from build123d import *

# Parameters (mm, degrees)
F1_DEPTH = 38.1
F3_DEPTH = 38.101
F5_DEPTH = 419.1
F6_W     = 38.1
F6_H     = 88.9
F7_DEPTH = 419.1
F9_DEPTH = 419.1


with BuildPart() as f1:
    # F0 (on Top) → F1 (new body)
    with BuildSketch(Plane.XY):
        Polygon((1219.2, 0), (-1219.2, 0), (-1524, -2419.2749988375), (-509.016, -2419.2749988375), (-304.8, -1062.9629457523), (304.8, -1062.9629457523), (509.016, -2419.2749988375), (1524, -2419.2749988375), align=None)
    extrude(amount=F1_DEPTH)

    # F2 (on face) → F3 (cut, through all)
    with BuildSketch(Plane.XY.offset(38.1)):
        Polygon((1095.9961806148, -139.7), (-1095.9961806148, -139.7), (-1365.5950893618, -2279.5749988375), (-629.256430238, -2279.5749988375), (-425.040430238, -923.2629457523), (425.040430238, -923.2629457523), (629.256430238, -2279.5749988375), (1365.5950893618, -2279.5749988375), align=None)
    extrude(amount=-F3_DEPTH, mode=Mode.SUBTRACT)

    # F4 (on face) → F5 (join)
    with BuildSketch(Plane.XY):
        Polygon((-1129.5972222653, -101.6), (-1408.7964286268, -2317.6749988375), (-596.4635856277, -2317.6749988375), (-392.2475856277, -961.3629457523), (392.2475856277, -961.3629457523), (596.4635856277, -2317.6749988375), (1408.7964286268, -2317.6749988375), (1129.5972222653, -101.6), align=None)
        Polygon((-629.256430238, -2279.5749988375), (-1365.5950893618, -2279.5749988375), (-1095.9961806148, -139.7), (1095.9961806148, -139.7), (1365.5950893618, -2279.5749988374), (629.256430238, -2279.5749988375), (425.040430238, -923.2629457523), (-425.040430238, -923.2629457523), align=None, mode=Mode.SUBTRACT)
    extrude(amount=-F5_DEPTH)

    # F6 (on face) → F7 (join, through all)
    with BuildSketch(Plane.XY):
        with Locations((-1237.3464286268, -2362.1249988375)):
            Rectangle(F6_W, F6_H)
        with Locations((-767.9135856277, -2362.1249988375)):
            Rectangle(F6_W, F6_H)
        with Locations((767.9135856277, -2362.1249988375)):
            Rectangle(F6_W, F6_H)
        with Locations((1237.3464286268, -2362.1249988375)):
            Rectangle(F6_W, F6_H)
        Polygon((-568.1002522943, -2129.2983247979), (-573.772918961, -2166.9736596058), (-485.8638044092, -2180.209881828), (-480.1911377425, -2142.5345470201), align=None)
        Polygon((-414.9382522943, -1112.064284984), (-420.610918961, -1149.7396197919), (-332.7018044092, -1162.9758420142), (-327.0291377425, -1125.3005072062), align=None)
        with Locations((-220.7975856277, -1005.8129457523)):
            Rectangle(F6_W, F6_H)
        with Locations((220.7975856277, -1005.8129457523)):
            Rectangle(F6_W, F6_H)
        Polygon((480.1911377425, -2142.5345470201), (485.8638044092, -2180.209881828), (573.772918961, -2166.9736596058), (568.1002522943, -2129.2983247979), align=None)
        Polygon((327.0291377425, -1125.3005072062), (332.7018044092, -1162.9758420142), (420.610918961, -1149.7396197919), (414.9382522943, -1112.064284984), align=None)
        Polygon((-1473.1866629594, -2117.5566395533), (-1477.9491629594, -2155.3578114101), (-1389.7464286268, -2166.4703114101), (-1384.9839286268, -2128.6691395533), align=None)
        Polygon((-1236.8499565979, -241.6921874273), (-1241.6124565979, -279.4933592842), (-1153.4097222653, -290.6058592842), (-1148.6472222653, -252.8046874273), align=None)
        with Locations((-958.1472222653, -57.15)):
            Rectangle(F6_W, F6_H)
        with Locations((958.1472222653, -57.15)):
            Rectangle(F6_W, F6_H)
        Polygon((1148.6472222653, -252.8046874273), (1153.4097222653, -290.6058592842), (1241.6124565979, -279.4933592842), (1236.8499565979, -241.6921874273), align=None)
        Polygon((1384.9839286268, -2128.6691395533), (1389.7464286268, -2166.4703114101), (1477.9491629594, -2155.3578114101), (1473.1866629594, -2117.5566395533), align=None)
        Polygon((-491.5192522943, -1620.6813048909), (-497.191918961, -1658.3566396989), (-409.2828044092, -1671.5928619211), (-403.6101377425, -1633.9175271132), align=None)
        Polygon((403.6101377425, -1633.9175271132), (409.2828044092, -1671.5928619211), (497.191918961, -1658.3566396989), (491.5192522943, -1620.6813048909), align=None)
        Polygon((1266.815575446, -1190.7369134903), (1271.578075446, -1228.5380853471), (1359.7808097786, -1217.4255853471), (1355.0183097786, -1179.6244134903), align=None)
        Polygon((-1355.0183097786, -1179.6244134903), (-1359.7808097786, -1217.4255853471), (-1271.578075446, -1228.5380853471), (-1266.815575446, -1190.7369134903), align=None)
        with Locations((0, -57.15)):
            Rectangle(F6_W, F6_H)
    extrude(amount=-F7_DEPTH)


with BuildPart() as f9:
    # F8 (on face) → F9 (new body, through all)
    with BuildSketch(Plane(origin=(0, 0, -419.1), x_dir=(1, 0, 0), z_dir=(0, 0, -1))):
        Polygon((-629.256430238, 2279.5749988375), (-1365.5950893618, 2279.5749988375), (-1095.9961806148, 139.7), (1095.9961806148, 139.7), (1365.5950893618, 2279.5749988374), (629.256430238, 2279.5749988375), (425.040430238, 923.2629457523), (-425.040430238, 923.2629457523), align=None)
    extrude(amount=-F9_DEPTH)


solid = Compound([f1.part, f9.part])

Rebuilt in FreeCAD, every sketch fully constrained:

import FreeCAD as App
import Part
import Sketcher

V = App.Vector
Q = App.Units.Quantity


def add_polygon(sketch, points):
    """Adds a closed chain of lines whose ends are joined by coincident constraints."""
    first, n = sketch.GeometryCount, len(points)
    for a, b in zip(points, points[1:] + points[:1]):
        sketch.addGeometry(Part.LineSegment(App.Vector(*a, 0), App.Vector(*b, 0)), False)
    for i in range(n):
        sketch.addConstraint(Sketcher.Constraint("Coincident", first + i, 2, first + (i + 1) % n, 1))

doc = App.newDocument("Part")
params = doc.addObject("Spreadsheet::Sheet", "Params")
for row, (alias, value) in enumerate([
    ("sketch1_width", "96 in"),
    ("sketch1_width2", "24 in"),
    ("sketch1_length", "96 in"),
    ("sketch1_length2", "54 in"),
    ("sketch1_width3", "39.96 in"),
    ("pad1_length", "1.5 in"),
    ("sketch2_length", "54 in"),
    ("sketch3_length", "54 in"),
    ("pad2_length", "16.5 in"),
    ("sketch4_width", "1.5 in"),
    ("sketch4_height", "3.5 in"),
    ("sketch4_length", "1.5 in"),
    ("sketch4_length2", "3.5 in"),
    ("pad3_length", "16.5 in"),
    ("sketch5_length", "54 in"),
    ("pad4_length", "16.5 in"),
], start=1):
    params.set(f"A{row}", alias)
    params.set(f"B{row}", "=" + value)
    params.setAlias(f"B{row}", alias)

body = doc.addObject("PartDesign::Body", "Body")

sketch1 = body.newObject("Sketcher::SketchObject", "Sketch")
sketch1.AttachmentSupport = (doc.getObject("XY_Plane"), [""])
sketch1.MapMode = "FlatFace"
add_polygon(sketch1, [(1219, 0), (-1219, 0), (-1524, -2419), (-509, -2419), (-305, -1063), (305, -1063), (509, -2419), (1524, -2419)])
sketch1.addConstraint([
    Sketcher.Constraint("Horizontal", 0),
    Sketcher.Constraint("Horizontal", 2),
    Sketcher.Constraint("Horizontal", 4),
    Sketcher.Constraint("Horizontal", 6),
    Sketcher.Constraint("Symmetric", 0, 2, 7, 2, -1, 1),
    Sketcher.Constraint("Symmetric", 2, 2, 5, 2, -2),
    Sketcher.Constraint("Equal", 2, 6),
    Sketcher.Constraint("Equal", 3, 5),
    Sketcher.Constraint("DistanceX", 0, 2, 0, 1, Q("96 in")),
    Sketcher.Constraint("DistanceX", 4, 1, 4, 2, Q("24 in")),
    Sketcher.Constraint("Distance", 1, Q("96 in")),
    Sketcher.Constraint("Distance", 3, Q("54 in")),
    Sketcher.Constraint("DistanceX", 1, 2, -1, 1, Q("60 in")),
    Sketcher.Constraint("DistanceX", 2, 1, 2, 2, Q("39.96 in")),
])
sketch1.setExpression("Constraints[16]", "Params.sketch1_width")
sketch1.setExpression("Constraints[17]", "Params.sketch1_width2")
sketch1.setExpression("Constraints[18]", "Params.sketch1_length")
sketch1.setExpression("Constraints[19]", "Params.sketch1_length2")
sketch1.setExpression("Constraints[21]", "Params.sketch1_width3")
pad1 = body.newObject("PartDesign::Pad", "Pad")
pad1.Profile = sketch1
pad1.setExpression("Length", "Params.pad1_length")

sketch2 = body.newObject("Sketcher::SketchObject", "Sketch001")
sketch2.AttachmentSupport = (doc.getObject("XY_Plane"), [""])
sketch2.MapMode = "FlatFace"
sketch2.AttachmentOffset = App.Placement(V(0, 0, 1.5 * 25.4), App.Rotation())
add_polygon(sketch2, [(1096, -140), (-1096, -140), (-1366, -2280), (-629, -2280), (-425, -923), (425, -923), (629, -2280), (1366, -2280)])
sketch2.addConstraint([
    Sketcher.Constraint("Horizontal", 0),
    Sketcher.Constraint("Horizontal", 2),
    Sketcher.Constraint("Horizontal", 4),
    Sketcher.Constraint("Horizontal", 6),
    Sketcher.Constraint("Symmetric", 2, 2, 5, 2, -2),
    Sketcher.Constraint("Equal", 2, 6),
    Sketcher.Constraint("Equal", 3, 5),
    Sketcher.Constraint("Equal", 1, 7),
    Sketcher.Constraint("Distance", 3, Q("54 in")),
    Sketcher.Constraint("DistanceY", 0, 2, -1, 1, Q("5.5 in")),
    Sketcher.Constraint("DistanceX", 2, 2, 3, 2, Q("8.04 in")),
    Sketcher.Constraint("DistanceX", 0, 2, 0, 1, 2191.992361),
    Sketcher.Constraint("DistanceX", 2, 1, 2, 2, 736.338659),
    Sketcher.Constraint("DistanceX", 4, 1, 4, 2, 850.08086),
    Sketcher.Constraint("DistanceY", 1, 2, -1, 1, 2279.574999),
])
sketch2.setExpression("Constraints[16]", "Params.sketch2_length")
pocket1 = body.newObject("PartDesign::Pocket", "Pocket")
pocket1.Profile = sketch2
pocket1.Type = "ThroughAll"

sketch3 = body.newObject("Sketcher::SketchObject", "Sketch002")
sketch3.AttachmentSupport = (doc.getObject("XY_Plane"), [""])
sketch3.MapMode = "FlatFace"
add_polygon(sketch3, [(-1130, -102), (-1409, -2318), (-596, -2318), (-392, -961), (392, -961), (596, -2318), (1409, -2318), (1130, -102)])
add_polygon(sketch3, [(-425, -923), (-629, -2280), (-1366, -2280), (-1096, -140), (1096, -140), (1366, -2280), (629, -2280), (425, -923)])
sketch3.addConstraint([
    Sketcher.Constraint("Horizontal", 1),
    Sketcher.Constraint("Horizontal", 3),
    Sketcher.Constraint("Horizontal", 5),
    Sketcher.Constraint("Horizontal", 7),
    Sketcher.Constraint("Horizontal", 9),
    Sketcher.Constraint("Horizontal", 11),
    Sketcher.Constraint("Horizontal", 13),
    Sketcher.Constraint("Horizontal", 15),
    Sketcher.Constraint("Symmetric", 1, 2, 4, 2, -2),
    Sketcher.Constraint("Symmetric", 9, 2, 12, 2, -2),
    Sketcher.Constraint("Parallel", 2, 8),
    Sketcher.Constraint("Parallel", 0, 10),
    Sketcher.Constraint("Parallel", 6, 12),
    Sketcher.Constraint("Parallel", 4, 14),
    Sketcher.Constraint("Equal", 1, 5),
    Sketcher.Constraint("Equal", 9, 13),
    Sketcher.Constraint("Equal", 2, 4),
    Sketcher.Constraint("Equal", 0, 6),
    Sketcher.Constraint("Equal", 4, 8),
    Sketcher.Constraint("Distance", 2, Q("54 in")),
    Sketcher.Constraint("DistanceY", 6, 2, -1, 1, Q("4 in")),
    Sketcher.Constraint("DistanceY", 10, 2, -1, 1, Q("5.5 in")),
    Sketcher.Constraint("DistanceY", 1, 2, 8, 2, Q("1.5 in")),
    Sketcher.Constraint("DistanceX", 1, 2, 2, 2, Q("8.04 in")),
    Sketcher.Constraint("DistanceX", 3, 1, 3, 2, 784.495171),
    Sketcher.Constraint("DistanceX", 9, 2, 9, 1, 736.338659),
    Sketcher.Constraint("DistanceX", 11, 1, 11, 2, 2191.992361),
    Sketcher.Constraint("DistanceX", 15, 2, 15, 1, 850.08086),
    Sketcher.Constraint("DistanceY", 0, 2, -1, 1, 2317.674999),
    Sketcher.Constraint("DistanceX", 0, 2, 8, 2, 779.539998),
])
sketch3.setExpression("Constraints[35]", "Params.sketch3_length")
pad2 = body.newObject("PartDesign::Pad", "Pad001")
pad2.Profile = sketch3
pad2.setExpression("Length", "Params.pad2_length")
pad2.Reversed = True

sketch4 = body.newObject("Sketcher::SketchObject", "Sketch003")
sketch4.AttachmentSupport = (doc.getObject("XY_Plane"), [""])
sketch4.MapMode = "FlatFace"
add_polygon(sketch4, [(-1256, -2318), (-1256, -2407), (-1218, -2407), (-1218, -2318)])
add_polygon(sketch4, [(-787, -2318), (-787, -2407), (-749, -2407), (-749, -2318)])
add_polygon(sketch4, [(749, -2318), (749, -2407), (787, -2407), (787, -2318)])
add_polygon(sketch4, [(1218, -2318), (1218, -2407), (1256, -2407), (1256, -2318)])
add_polygon(sketch4, [(-568, -2129), (-574, -2167), (-486, -2180), (-480, -2143)])
add_polygon(sketch4, [(-415, -1112), (-421, -1150), (-333, -1163), (-327, -1125)])
add_polygon(sketch4, [(-240, -961), (-240, -1050), (-202, -1050), (-202, -961)])
add_polygon(sketch4, [(202, -961), (202, -1050), (240, -1050), (240, -961)])
add_polygon(sketch4, [(480, -2143), (486, -2180), (574, -2167), (568, -2129)])
add_polygon(sketch4, [(327, -1125), (333, -1163), (421, -1150), (415, -1112)])
add_polygon(sketch4, [(-1473, -2118), (-1478, -2155), (-1390, -2166), (-1385, -2129)])
add_polygon(sketch4, [(-1237, -242), (-1242, -279), (-1153, -291), (-1149, -253)])
add_polygon(sketch4, [(-977, -13), (-977, -102), (-939, -102), (-939, -13)])
add_polygon(sketch4, [(939, -13), (939, -102), (977, -102), (977, -13)])
add_polygon(sketch4, [(1149, -253), (1153, -291), (1242, -279), (1237, -242)])
add_polygon(sketch4, [(1385, -2129), (1390, -2166), (1478, -2155), (1473, -2118)])
add_polygon(sketch4, [(-492, -1621), (-497, -1658), (-409, -1672), (-404, -1634)])
add_polygon(sketch4, [(404, -1634), (409, -1672), (497, -1658), (492, -1621)])
add_polygon(sketch4, [(1267, -1191), (1272, -1229), (1360, -1217), (1355, -1180)])
add_polygon(sketch4, [(-1355, -1180), (-1360, -1217), (-1272, -1229), (-1267, -1191)])
add_polygon(sketch4, [(-19, -13), (-19, -102), (19, -102), (19, -13)])
sketch4.addConstraint([
    Sketcher.Constraint("Vertical", 0),
    Sketcher.Constraint("Horizontal", 1),
    Sketcher.Constraint("Vertical", 2),
    Sketcher.Constraint("Horizontal", 3),
    Sketcher.Constraint("Vertical", 4),
    Sketcher.Constraint("Horizontal", 5),
    Sketcher.Constraint("Vertical", 6),
    Sketcher.Constraint("Horizontal", 7),
    Sketcher.Constraint("Vertical", 8),
    Sketcher.Constraint("Horizontal", 9),
    Sketcher.Constraint("Vertical", 10),
    Sketcher.Constraint("Horizontal", 11),
    Sketcher.Constraint("Vertical", 12),
    Sketcher.Constraint("Horizontal", 13),
    Sketcher.Constraint("Vertical", 14),
    Sketcher.Constraint("Horizontal", 15),
    Sketcher.Constraint("Vertical", 24),
    Sketcher.Constraint("Horizontal", 25),
    Sketcher.Constraint("Vertical", 26),
    Sketcher.Constraint("Horizontal", 27),
    Sketcher.Constraint("Vertical", 28),
    Sketcher.Constraint("Horizontal", 29),
    Sketcher.Constraint("Vertical", 30),
    Sketcher.Constraint("Horizontal", 31),
    Sketcher.Constraint("Vertical", 48),
    Sketcher.Constraint("Horizontal", 49),
    Sketcher.Constraint("Vertical", 50),
    Sketcher.Constraint("Horizontal", 51),
    Sketcher.Constraint("Vertical", 52),
    Sketcher.Constraint("Horizontal", 53),
    Sketcher.Constraint("Vertical", 54),
    Sketcher.Constraint("Horizontal", 55),
    Sketcher.Constraint("Vertical", 80),
    Sketcher.Constraint("Horizontal", 81),
    Sketcher.Constraint("Vertical", 82),
    Sketcher.Constraint("Horizontal", 83),
    Sketcher.Constraint("Symmetric", 5, 2, 8, 2, -2),
    Sketcher.Constraint("Symmetric", 7, 2, 10, 2, -2),
    Sketcher.Constraint("Symmetric", 1, 2, 12, 2, -2),
    Sketcher.Constraint("Symmetric", 3, 2, 14, 2, -2),
    Sketcher.Constraint("Symmetric", 25, 2, 28, 2, -2),
    Sketcher.Constraint("Symmetric", 27, 2, 30, 2, -2),
    Sketcher.Constraint("Symmetric", 17, 2, 32, 2, -2),
    Sketcher.Constraint("Symmetric", 16, 2, 33, 2, -2),
    Sketcher.Constraint("Symmetric", 19, 2, 34, 2, -2),
    Sketcher.Constraint("Symmetric", 18, 2, 35, 2, -2),
    Sketcher.Constraint("Symmetric", 21, 2, 36, 2, -2),
    Sketcher.Constraint("Symmetric", 20, 2, 37, 2, -2),
    Sketcher.Constraint("Symmetric", 23, 2, 38, 2, -2),
    Sketcher.Constraint("Symmetric", 22, 2, 39, 2, -2),
    Sketcher.Constraint("Symmetric", 49, 2, 52, 2, -2),
    Sketcher.Constraint("Symmetric", 51, 2, 54, 2, -2),
    Sketcher.Constraint("Symmetric", 45, 2, 56, 2, -2),
    Sketcher.Constraint("Symmetric", 44, 2, 57, 2, -2),
    Sketcher.Constraint("Symmetric", 47, 2, 58, 2, -2),
    Sketcher.Constraint("Symmetric", 46, 2, 59, 2, -2),
    Sketcher.Constraint("Symmetric", 41, 2, 60, 2, -2),
    Sketcher.Constraint("Symmetric", 40, 2, 61, 2, -2),
    Sketcher.Constraint("Symmetric", 43, 2, 62, 2, -2),
    Sketcher.Constraint("Symmetric", 42, 2, 63, 2, -2),
    Sketcher.Constraint("Symmetric", 65, 2, 68, 2, -2),
    Sketcher.Constraint("Symmetric", 64, 2, 69, 2, -2),
    Sketcher.Constraint("Symmetric", 67, 2, 70, 2, -2),
    Sketcher.Constraint("Symmetric", 66, 2, 71, 2, -2),
    Sketcher.Constraint("Symmetric", 73, 2, 76, 2, -2),
    Sketcher.Constraint("Symmetric", 72, 2, 77, 2, -2),
    Sketcher.Constraint("Symmetric", 75, 2, 78, 2, -2),
    Sketcher.Constraint("Symmetric", 74, 2, 79, 2, -2),
    Sketcher.Constraint("Perpendicular", 16, 17),
    Sketcher.Constraint("Perpendicular", 17, 18),
    Sketcher.Constraint("Perpendicular", 18, 19),
    Sketcher.Constraint("Perpendicular", 19, 20),
    Sketcher.Constraint("Perpendicular", 20, 21),
    Sketcher.Constraint("Perpendicular", 21, 22),
    Sketcher.Constraint("Perpendicular", 22, 23),
    Sketcher.Constraint("Perpendicular", 40, 41),
    Sketcher.Constraint("Perpendicular", 41, 42),
    Sketcher.Constraint("Perpendicular", 42, 43),
    Sketcher.Constraint("Perpendicular", 43, 44),
    Sketcher.Constraint("Perpendicular", 44, 45),
    Sketcher.Constraint("Perpendicular", 45, 46),
    Sketcher.Constraint("Perpendicular", 46, 47),
    Sketcher.Constraint("Perpendicular", 23, 64),
    Sketcher.Constraint("Perpendicular", 64, 65),
    Sketcher.Constraint("Perpendicular", 65, 66),
    Sketcher.Constraint("Perpendicular", 66, 67),
    Sketcher.Constraint("Perpendicular", 63, 72),
    Sketcher.Constraint("Perpendicular", 72, 73),
    Sketcher.Constraint("Perpendicular", 73, 74),
    Sketcher.Constraint("Perpendicular", 74, 75),
    Sketcher.Constraint("Horizontal", 1, 2, 4, 2),
    Sketcher.Constraint("Horizontal", 3, 2, 6, 2),
    Sketcher.Constraint("Horizontal", 53, 2, 80, 2),
    Sketcher.Constraint("Horizontal", 55, 2, 82, 2),
    Sketcher.Constraint("Equal", 3, 5),
    Sketcher.Constraint("Equal", 15, 25),
    Sketcher.Constraint("Equal", 31, 49),
    Sketcher.Constraint("Equal", 55, 81),
    Sketcher.Constraint("Equal", 14, 24),
    Sketcher.Constraint("Equal", 30, 48),
    Sketcher.Constraint("Equal", 18, 20),
    Sketcher.Constraint("Equal", 19, 21),
    Sketcher.Constraint("Equal", 38, 40),
    Sketcher.Constraint("Equal", 39, 41),
    Sketcher.Constraint("Equal", 42, 44),
    Sketcher.Constraint("Equal", 43, 45),
    Sketcher.Constraint("Equal", 62, 64),
    Sketcher.Constraint("Equal", 63, 65),
    Sketcher.Constraint("Equal", 70, 72),
    Sketcher.Constraint("Equal", 71, 73),
    Sketcher.Constraint("DistanceX", 1, 1, 1, 2, Q("1.5 in")),
    Sketcher.Constraint("DistanceY", 0, 2, 0, 1, Q("3.5 in")),
    Sketcher.Constraint("DistanceY", 48, 2, -1, 1, Q("4 in")),
    Sketcher.Constraint("Distance", 16, Q("1.5 in")),
    Sketcher.Constraint("Distance", 17, Q("3.5 in")),
    Sketcher.Constraint("DistanceX", 80, 2, -1, 1, Q("0.75 in")),
    Sketcher.Constraint("DistanceY", 0, 2, -1, 1, 2406.574999),
    Sketcher.Constraint("DistanceX", 0, 2, -1, 1, 1256.396429),
    Sketcher.Constraint("DistanceX", 16, 2, -1, 1, 573.772919),
    Sketcher.Constraint("DistanceY", 16, 2, -1, 1, 2166.97366),
    Sketcher.Constraint("DistanceY", 17, 2, -1, 1, 2180.209882),
    Sketcher.Constraint("DistanceX", 20, 2, -1, 1, 420.610919),
    Sketcher.Constraint("DistanceY", 20, 2, -1, 1, 1149.73962),
    Sketcher.Constraint("DistanceY", 40, 2, -1, 1, 2155.357811),
    Sketcher.Constraint("DistanceX", 41, 2, -1, 1, 1389.746429),
    Sketcher.Constraint("DistanceY", 41, 2, -1, 1, 2166.470311),
    Sketcher.Constraint("DistanceY", 44, 2, -1, 1, 279.493359),
    Sketcher.Constraint("DistanceX", 64, 2, -1, 1, 497.191919),
    Sketcher.Constraint("DistanceY", 64, 2, -1, 1, 1658.35664),
    Sketcher.Constraint("DistanceX", -1, 1, 73, 2, 1359.78081),
    Sketcher.Constraint("DistanceX", 4, 2, -1, 1, 786.963586),
    Sketcher.Constraint("DistanceX", 24, 2, -1, 1, 239.847586),
    Sketcher.Constraint("DistanceY", 24, 2, -1, 1, 1050.262946),
    Sketcher.Constraint("DistanceX", 44, 2, -1, 1, 1241.612457),
    Sketcher.Constraint("DistanceX", 48, 2, -1, 1, 977.197222),
    Sketcher.Constraint("DistanceY", 72, 2, -1, 1, 1228.538085),
])
sketch4.setExpression("Constraints[194]", "Params.sketch4_width")
sketch4.setExpression("Constraints[195]", "Params.sketch4_height")
sketch4.setExpression("Constraints[197]", "Params.sketch4_length")
sketch4.setExpression("Constraints[198]", "Params.sketch4_length2")
pad3 = body.newObject("PartDesign::Pad", "Pad002")
pad3.Profile = sketch4
pad3.setExpression("Length", "Params.pad3_length")
pad3.Reversed = True
body2 = doc.addObject("PartDesign::Body", "Body001")

sketch5 = body2.newObject("Sketcher::SketchObject", "Sketch004")
sketch5.AttachmentSupport = (doc.getObject("XY_Plane001"), [""])
sketch5.MapMode = "FlatFace"
sketch5.AttachmentOffset = App.Placement(V(0, 0, -16.5 * 25.4), App.Rotation())
add_polygon(sketch5, [(-629, -2280), (-1366, -2280), (-1096, -140), (1096, -140), (1366, -2280), (629, -2280), (425, -923), (-425, -923)])
sketch5.addConstraint([
    Sketcher.Constraint("Horizontal", 0),
    Sketcher.Constraint("Horizontal", 2),
    Sketcher.Constraint("Horizontal", 4),
    Sketcher.Constraint("Horizontal", 6),
    Sketcher.Constraint("Symmetric", 0, 2, 3, 2, -2),
    Sketcher.Constraint("Equal", 0, 4),
    Sketcher.Constraint("Equal", 1, 3),
    Sketcher.Constraint("Equal", 5, 7),
    Sketcher.Constraint("Distance", 5, Q("54 in")),
    Sketcher.Constraint("DistanceY", 1, 2, -1, 1, Q("5.5 in")),
    Sketcher.Constraint("DistanceX", 5, 2, 4, 2, Q("8.04 in")),
    Sketcher.Constraint("DistanceX", 0, 2, 0, 1, 736.338659),
    Sketcher.Constraint("DistanceX", 2, 1, 2, 2, 2191.992361),
    Sketcher.Constraint("DistanceX", 6, 2, 6, 1, 850.08086),
    Sketcher.Constraint("DistanceY", 0, 2, -1, 1, 2279.574999),
])
sketch5.setExpression("Constraints[16]", "Params.sketch5_length")
pad4 = body2.newObject("PartDesign::Pad", "Pad003")
pad4.Profile = sketch5
pad4.setExpression("Length", "Params.pad4_length")

doc.recompute()
